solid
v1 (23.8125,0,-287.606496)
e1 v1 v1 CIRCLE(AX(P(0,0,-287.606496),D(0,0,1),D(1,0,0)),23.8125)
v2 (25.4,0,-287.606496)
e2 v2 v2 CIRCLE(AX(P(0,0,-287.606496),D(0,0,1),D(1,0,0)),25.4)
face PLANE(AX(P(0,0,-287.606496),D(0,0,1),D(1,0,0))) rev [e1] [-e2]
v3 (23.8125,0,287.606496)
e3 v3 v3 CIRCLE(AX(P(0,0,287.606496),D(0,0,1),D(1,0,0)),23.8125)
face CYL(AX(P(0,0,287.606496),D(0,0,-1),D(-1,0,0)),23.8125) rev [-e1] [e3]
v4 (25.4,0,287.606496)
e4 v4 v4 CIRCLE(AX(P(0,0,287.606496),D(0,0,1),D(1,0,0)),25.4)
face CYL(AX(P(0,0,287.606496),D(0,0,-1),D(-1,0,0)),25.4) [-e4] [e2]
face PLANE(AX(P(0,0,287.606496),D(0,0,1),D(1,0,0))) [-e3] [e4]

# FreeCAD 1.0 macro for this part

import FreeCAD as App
import Part
import Sketcher

V = App.Vector
Q = App.Units.Quantity

doc = App.newDocument("Part")
body = doc.addObject("PartDesign::Body", "Body")

sketch1 = body.newObject("Sketcher::SketchObject", "Sketch")
sketch1.AttachmentSupport = (doc.getObject("XY_Plane"), [""])
sketch1.MapMode = "FlatFace"
sketch1.addGeometry([
    Part.Circle(V(0, 0, 0), V(0, 0, 1), 25.4),
    Part.Circle(V(0, 0, 0), V(0, 0, 1), 23.8125),
], False)
sketch1.addConstraint([
    Sketcher.Constraint("Coincident", 0, 3, -1, 1),
    Sketcher.Constraint("Coincident", 1, 3, -1, 1),
    Sketcher.Constraint("Diameter", 0, Q("2 in")),
    Sketcher.Constraint("Diameter", 1, Q("1.875 in")),
])
pad1 = body.newObject("PartDesign::Pad", "Pad")
pad1.Profile = sketch1
pad1.Length = 575.212993
pad1.Midplane = True

doc.recompute()
